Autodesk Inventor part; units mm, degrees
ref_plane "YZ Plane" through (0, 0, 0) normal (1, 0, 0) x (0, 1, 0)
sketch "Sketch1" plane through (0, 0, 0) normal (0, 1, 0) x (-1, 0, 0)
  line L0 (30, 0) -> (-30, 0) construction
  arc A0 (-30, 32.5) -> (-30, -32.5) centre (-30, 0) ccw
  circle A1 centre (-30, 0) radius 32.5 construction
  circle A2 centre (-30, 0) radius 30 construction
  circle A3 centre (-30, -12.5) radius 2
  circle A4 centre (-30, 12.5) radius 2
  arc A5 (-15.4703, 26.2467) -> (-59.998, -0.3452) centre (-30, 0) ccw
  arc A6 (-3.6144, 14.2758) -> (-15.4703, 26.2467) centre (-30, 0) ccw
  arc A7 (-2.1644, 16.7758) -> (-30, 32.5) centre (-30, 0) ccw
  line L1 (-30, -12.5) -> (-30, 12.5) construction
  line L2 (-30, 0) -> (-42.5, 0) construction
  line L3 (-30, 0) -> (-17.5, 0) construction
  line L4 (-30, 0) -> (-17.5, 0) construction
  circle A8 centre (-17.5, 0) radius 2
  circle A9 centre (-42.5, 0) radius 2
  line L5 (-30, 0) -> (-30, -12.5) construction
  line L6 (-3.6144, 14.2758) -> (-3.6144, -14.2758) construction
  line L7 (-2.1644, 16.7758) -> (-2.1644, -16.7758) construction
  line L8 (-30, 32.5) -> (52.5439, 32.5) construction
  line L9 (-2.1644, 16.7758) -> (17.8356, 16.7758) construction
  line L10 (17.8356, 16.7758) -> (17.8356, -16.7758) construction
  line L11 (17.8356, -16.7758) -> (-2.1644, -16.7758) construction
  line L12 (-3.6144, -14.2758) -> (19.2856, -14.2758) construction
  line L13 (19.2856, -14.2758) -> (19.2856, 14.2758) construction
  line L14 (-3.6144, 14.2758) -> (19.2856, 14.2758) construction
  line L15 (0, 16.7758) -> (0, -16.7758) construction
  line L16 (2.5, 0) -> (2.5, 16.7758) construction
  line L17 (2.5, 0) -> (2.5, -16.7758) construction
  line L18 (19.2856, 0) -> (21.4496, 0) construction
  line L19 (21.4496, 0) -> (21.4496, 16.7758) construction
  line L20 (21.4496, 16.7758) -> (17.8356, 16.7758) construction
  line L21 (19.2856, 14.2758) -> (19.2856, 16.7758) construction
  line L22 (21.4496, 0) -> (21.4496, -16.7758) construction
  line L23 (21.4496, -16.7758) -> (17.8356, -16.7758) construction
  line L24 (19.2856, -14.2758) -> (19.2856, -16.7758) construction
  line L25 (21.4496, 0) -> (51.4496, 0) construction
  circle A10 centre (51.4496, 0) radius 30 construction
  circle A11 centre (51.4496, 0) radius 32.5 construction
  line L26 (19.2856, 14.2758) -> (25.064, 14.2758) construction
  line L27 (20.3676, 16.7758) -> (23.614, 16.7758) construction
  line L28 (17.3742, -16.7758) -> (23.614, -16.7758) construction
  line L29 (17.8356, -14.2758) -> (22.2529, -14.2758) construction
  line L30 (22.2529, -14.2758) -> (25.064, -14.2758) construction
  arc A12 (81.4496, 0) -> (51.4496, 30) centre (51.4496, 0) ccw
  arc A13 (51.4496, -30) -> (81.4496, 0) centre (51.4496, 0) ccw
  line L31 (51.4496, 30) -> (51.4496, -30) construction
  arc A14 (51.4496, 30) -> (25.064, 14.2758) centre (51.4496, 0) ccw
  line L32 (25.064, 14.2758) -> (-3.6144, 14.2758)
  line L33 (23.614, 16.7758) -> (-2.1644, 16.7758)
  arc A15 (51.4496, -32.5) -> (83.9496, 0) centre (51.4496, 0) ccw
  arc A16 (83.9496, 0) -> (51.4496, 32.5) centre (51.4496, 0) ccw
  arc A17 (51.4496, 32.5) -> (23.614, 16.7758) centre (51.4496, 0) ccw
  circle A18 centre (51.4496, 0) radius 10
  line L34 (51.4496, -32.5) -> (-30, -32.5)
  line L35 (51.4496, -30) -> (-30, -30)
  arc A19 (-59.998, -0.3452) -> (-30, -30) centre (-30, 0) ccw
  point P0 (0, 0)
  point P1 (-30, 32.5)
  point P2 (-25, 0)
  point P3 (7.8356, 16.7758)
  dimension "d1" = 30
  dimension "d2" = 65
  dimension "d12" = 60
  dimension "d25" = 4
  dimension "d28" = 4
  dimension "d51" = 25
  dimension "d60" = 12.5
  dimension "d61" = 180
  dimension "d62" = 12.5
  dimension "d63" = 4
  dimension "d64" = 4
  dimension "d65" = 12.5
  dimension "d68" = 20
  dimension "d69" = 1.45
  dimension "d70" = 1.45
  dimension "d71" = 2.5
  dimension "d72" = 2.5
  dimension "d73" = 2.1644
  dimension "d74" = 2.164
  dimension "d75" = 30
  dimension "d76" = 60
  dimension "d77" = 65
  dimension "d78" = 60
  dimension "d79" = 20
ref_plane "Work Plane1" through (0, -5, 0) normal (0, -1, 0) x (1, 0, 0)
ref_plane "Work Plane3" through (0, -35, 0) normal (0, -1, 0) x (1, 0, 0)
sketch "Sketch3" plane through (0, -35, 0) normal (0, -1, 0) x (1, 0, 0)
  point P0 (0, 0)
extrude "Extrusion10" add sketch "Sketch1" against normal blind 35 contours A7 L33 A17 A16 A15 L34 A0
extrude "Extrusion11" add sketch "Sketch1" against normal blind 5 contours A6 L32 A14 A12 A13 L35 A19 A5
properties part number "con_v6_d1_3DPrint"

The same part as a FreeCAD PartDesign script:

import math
import FreeCAD as App
import Part
import Sketcher
from FreeCAD import Vector
Q = App.Units.Quantity

doc = App.newDocument("Part")
body = doc.addObject("PartDesign::Body", "Body")

sketch1 = body.newObject("Sketcher::SketchObject", "Sketch")
sketch1.AttachmentSupport = (doc.getObject("XZ_Plane"), [""])
sketch1.MapMode = "FlatFace"
sketch1.addGeometry([
    Part.ArcOfCircle(Part.Circle(Vector(30, 0, 0), Vector(0, 0, 1), 32), math.radians(90), math.radians(149)),
    Part.ArcOfCircle(Part.Circle(Vector(30, 0, 0), Vector(0, 0, 1), 32), math.radians(-90), math.radians(90)),
    Part.LineSegment(Vector(30, -32, 0), Vector(-51, -32, 0)),
    Part.ArcOfCircle(Part.Circle(Vector(-51, 0, 0), Vector(0, 0, 1), 32), math.radians(90), math.radians(270)),
    Part.ArcOfCircle(Part.Circle(Vector(-51, 0, 0), Vector(0, 0, 1), 32), math.radians(31), math.radians(90)),
    Part.LineSegment(Vector(-24, 17, 0), Vector(2, 17, 0)),
    Part.ArcOfCircle(Part.Circle(Vector(30, 0, 0), Vector(0, 0, 1), 30), math.radians(-1), math.radians(119)),
    Part.ArcOfCircle(Part.Circle(Vector(30, 0, 0), Vector(0, 0, 1), 30), math.radians(119), math.radians(152)),
    Part.LineSegment(Vector(4, 14, 0), Vector(-25, 14, 0)),
    Part.ArcOfCircle(Part.Circle(Vector(-51, 0, 0), Vector(0, 0, 1), 30), math.radians(28), math.radians(90)),
    Part.ArcOfCircle(Part.Circle(Vector(-51, 0, 0), Vector(0, 0, 1), 30), math.radians(90), math.radians(270)),
    Part.LineSegment(Vector(-51, -30, 0), Vector(30, -30, 0)),
    Part.ArcOfCircle(Part.Circle(Vector(30, 0, 0), Vector(0, 0, 1), 30), math.radians(-90), math.radians(-1)),
], False)
sketch1.addConstraint([
    Sketcher.Constraint("Tangent", 0, 1, 1, 2),
    Sketcher.Constraint("Tangent", 1, 1, 2, 1),
    Sketcher.Constraint("Tangent", 2, 2, 3, 2),
    Sketcher.Constraint("Tangent", 3, 1, 4, 2),
    Sketcher.Constraint("Coincident", 4, 1, 5, 1),
    Sketcher.Constraint("Coincident", 5, 2, 0, 2),
    Sketcher.Constraint("Tangent", 6, 2, 7, 1),
    Sketcher.Constraint("Coincident", 7, 2, 8, 1),
    Sketcher.Constraint("Coincident", 8, 2, 9, 1),
    Sketcher.Constraint("Tangent", 9, 2, 10, 1),
    Sketcher.Constraint("Tangent", 10, 2, 11, 1),
    Sketcher.Constraint("Tangent", 11, 2, 12, 1),
    Sketcher.Constraint("Tangent", 12, 2, 6, 1),
    Sketcher.Constraint("Horizontal", 2),
    Sketcher.Constraint("Horizontal", 5),
    Sketcher.Constraint("Horizontal", 8),
    Sketcher.Constraint("Horizontal", 11),
    Sketcher.Constraint("Coincident", 6, 3, 0, 3),
    Sketcher.Constraint("Coincident", 9, 3, 3, 3),
    Sketcher.Constraint("Equal", 0, 1),
    Sketcher.Constraint("Equal", 1, 3),
    Sketcher.Constraint("Equal", 3, 4),
    Sketcher.Constraint("Equal", 6, 7),
    Sketcher.Constraint("Equal", 7, 9),
    Sketcher.Constraint("Equal", 9, 10),
    Sketcher.Constraint("Symmetric", 0, 1, 1, 1, -1),
    Sketcher.Constraint("Vertical", 2, 2, 3, 1),
    Sketcher.Constraint("Vertical", 3, 1, 9, 2),
    Sketcher.Constraint("Radius", 6, Q("30 mm")),
    Sketcher.Constraint("Radius", 0, Q("32.5 mm")),
    Sketcher.Constraint("DistanceX", -1, 1, 0, 3, Q("30 mm")),
    Sketcher.Constraint("DistanceY", 7, 2, 5, 2, Q("2.5 mm")),
    Sketcher.Constraint("DistanceX", -1, 1, 5, 2, Q("2.1644 mm")),
    Sketcher.Constraint("DistanceX", 2, 2, 2, 1, Q("81.4496 mm")),
    Sketcher.Constraint("DistanceX", -1, 1, 12, 2, Q("59.998 mm")),
    Sketcher.Constraint("DistanceX", 5, 2, 6, 2, Q("13.306 mm")),
])
pad1 = body.newObject("PartDesign::Pad", "Pad")
pad1.Profile = sketch1
pad1.Length = 35

sketch2 = body.newObject("Sketcher::SketchObject", "Sketch001")
sketch2.AttachmentSupport = (doc.getObject("XZ_Plane"), [""])
sketch2.MapMode = "FlatFace"
sketch2.addGeometry([
    Part.ArcOfCircle(Part.Circle(Vector(30, 0, 0), Vector(0, 0, 1), 30), math.radians(119), math.radians(152)),
    Part.ArcOfCircle(Part.Circle(Vector(30, 0, 0), Vector(0, 0, 1), 30), math.radians(-1), math.radians(119)),
    Part.ArcOfCircle(Part.Circle(Vector(30, 0, 0), Vector(0, 0, 1), 30), math.radians(-90), math.radians(-1)),
    Part.LineSegment(Vector(30, -30, 0), Vector(-51.4, -30, 0)),
    Part.ArcOfCircle(Part.Circle(Vector(-51.4, 0, 0), Vector(0, 0, 1), 30), math.radians(90), math.radians(270)),
    Part.ArcOfCircle(Part.Circle(Vector(-51.4, 0, 0), Vector(0, 0, 1), 30), math.radians(28), math.radians(90)),
    Part.LineSegment(Vector(-25.1, 14.3, 0), Vector(3.6, 14.3, 0)),
    Part.Circle(Vector(30, -12.5, 0), Vector(0, 0, 1), 2),
    Part.Circle(Vector(42.5, 0, 0), Vector(0, 0, 1), 2),
    Part.Circle(Vector(17.5, 0, 0), Vector(0, 0, 1), 2),
    Part.Circle(Vector(-51.4, 0, 0), Vector(0, 0, 1), 10),
    Part.Circle(Vector(30, 12.5, 0), Vector(0, 0, 1), 2),
], False)
sketch2.addConstraint([
    Sketcher.Constraint("Tangent", 0, 1, 1, 2),
    Sketcher.Constraint("Tangent", 1, 1, 2, 2),
    Sketcher.Constraint("Tangent", 2, 1, 3, 1),
    Sketcher.Constraint("Tangent", 3, 2, 4, 2),
    Sketcher.Constraint("Tangent", 4, 1, 5, 2),
    Sketcher.Constraint("Coincident", 5, 1, 6, 1),
    Sketcher.Constraint("Coincident", 6, 2, 0, 2),
    Sketcher.Constraint("Horizontal", 3),
    Sketcher.Constraint("Horizontal", 6),
    Sketcher.Constraint("Coincident", 2, 3, 0, 3),
    Sketcher.Constraint("Coincident", 10, 3, 4, 3),
    Sketcher.Constraint("Equal", 2, 4),
    Sketcher.Constraint("Equal", 4, 5),
    Sketcher.Constraint("Equal", 7, 8),
    Sketcher.Constraint("Equal", 8, 9),
    Sketcher.Constraint("Equal", 9, 11),
    Sketcher.Constraint("Symmetric", 7, 3, 11, 3, -1),
    Sketcher.Constraint("Symmetric", 3, 2, 4, 1, -1),
    Sketcher.Constraint("PointOnObject", 8, 3, -1),
    Sketcher.Constraint("PointOnObject", 9, 3, -1),
    Sketcher.Constraint("Vertical", 2, 3, 7, 3),
    Sketcher.Constraint("Diameter", 7, Q("4 mm")),
    Sketcher.Constraint("Diameter", 10, Q("20 mm")),
    Sketcher.Constraint("Radius", 0, Q("30 mm")),
    Sketcher.Constraint("DistanceX", -1, 1, 0, 3, Q("30 mm")),
    Sketcher.Constraint("DistanceX", 9, 3, 8, 3, Q("25 mm")),
    Sketcher.Constraint("DistanceY", 7, 3, -1, 1, Q("12.5 mm")),
    Sketcher.Constraint("DistanceX", 0, 3, 8, 3, Q("12.5 mm")),
    Sketcher.Constraint("DistanceX", 4, 1, 0, 1, Q("66.92 mm")),
    Sketcher.Constraint("DistanceX", 3, 2, 3, 1, Q("81.4496 mm")),
    Sketcher.Constraint("DistanceX", 6, 1, 6, 2, Q("28.6784 mm")),
    Sketcher.Constraint("DistanceX", -1, 1, 1, 1, Q("59.998 mm")),
])
pad2 = body.newObject("PartDesign::Pad", "Pad001")
pad2.Profile = sketch2
pad2.Length = 5

doc.recompute()
